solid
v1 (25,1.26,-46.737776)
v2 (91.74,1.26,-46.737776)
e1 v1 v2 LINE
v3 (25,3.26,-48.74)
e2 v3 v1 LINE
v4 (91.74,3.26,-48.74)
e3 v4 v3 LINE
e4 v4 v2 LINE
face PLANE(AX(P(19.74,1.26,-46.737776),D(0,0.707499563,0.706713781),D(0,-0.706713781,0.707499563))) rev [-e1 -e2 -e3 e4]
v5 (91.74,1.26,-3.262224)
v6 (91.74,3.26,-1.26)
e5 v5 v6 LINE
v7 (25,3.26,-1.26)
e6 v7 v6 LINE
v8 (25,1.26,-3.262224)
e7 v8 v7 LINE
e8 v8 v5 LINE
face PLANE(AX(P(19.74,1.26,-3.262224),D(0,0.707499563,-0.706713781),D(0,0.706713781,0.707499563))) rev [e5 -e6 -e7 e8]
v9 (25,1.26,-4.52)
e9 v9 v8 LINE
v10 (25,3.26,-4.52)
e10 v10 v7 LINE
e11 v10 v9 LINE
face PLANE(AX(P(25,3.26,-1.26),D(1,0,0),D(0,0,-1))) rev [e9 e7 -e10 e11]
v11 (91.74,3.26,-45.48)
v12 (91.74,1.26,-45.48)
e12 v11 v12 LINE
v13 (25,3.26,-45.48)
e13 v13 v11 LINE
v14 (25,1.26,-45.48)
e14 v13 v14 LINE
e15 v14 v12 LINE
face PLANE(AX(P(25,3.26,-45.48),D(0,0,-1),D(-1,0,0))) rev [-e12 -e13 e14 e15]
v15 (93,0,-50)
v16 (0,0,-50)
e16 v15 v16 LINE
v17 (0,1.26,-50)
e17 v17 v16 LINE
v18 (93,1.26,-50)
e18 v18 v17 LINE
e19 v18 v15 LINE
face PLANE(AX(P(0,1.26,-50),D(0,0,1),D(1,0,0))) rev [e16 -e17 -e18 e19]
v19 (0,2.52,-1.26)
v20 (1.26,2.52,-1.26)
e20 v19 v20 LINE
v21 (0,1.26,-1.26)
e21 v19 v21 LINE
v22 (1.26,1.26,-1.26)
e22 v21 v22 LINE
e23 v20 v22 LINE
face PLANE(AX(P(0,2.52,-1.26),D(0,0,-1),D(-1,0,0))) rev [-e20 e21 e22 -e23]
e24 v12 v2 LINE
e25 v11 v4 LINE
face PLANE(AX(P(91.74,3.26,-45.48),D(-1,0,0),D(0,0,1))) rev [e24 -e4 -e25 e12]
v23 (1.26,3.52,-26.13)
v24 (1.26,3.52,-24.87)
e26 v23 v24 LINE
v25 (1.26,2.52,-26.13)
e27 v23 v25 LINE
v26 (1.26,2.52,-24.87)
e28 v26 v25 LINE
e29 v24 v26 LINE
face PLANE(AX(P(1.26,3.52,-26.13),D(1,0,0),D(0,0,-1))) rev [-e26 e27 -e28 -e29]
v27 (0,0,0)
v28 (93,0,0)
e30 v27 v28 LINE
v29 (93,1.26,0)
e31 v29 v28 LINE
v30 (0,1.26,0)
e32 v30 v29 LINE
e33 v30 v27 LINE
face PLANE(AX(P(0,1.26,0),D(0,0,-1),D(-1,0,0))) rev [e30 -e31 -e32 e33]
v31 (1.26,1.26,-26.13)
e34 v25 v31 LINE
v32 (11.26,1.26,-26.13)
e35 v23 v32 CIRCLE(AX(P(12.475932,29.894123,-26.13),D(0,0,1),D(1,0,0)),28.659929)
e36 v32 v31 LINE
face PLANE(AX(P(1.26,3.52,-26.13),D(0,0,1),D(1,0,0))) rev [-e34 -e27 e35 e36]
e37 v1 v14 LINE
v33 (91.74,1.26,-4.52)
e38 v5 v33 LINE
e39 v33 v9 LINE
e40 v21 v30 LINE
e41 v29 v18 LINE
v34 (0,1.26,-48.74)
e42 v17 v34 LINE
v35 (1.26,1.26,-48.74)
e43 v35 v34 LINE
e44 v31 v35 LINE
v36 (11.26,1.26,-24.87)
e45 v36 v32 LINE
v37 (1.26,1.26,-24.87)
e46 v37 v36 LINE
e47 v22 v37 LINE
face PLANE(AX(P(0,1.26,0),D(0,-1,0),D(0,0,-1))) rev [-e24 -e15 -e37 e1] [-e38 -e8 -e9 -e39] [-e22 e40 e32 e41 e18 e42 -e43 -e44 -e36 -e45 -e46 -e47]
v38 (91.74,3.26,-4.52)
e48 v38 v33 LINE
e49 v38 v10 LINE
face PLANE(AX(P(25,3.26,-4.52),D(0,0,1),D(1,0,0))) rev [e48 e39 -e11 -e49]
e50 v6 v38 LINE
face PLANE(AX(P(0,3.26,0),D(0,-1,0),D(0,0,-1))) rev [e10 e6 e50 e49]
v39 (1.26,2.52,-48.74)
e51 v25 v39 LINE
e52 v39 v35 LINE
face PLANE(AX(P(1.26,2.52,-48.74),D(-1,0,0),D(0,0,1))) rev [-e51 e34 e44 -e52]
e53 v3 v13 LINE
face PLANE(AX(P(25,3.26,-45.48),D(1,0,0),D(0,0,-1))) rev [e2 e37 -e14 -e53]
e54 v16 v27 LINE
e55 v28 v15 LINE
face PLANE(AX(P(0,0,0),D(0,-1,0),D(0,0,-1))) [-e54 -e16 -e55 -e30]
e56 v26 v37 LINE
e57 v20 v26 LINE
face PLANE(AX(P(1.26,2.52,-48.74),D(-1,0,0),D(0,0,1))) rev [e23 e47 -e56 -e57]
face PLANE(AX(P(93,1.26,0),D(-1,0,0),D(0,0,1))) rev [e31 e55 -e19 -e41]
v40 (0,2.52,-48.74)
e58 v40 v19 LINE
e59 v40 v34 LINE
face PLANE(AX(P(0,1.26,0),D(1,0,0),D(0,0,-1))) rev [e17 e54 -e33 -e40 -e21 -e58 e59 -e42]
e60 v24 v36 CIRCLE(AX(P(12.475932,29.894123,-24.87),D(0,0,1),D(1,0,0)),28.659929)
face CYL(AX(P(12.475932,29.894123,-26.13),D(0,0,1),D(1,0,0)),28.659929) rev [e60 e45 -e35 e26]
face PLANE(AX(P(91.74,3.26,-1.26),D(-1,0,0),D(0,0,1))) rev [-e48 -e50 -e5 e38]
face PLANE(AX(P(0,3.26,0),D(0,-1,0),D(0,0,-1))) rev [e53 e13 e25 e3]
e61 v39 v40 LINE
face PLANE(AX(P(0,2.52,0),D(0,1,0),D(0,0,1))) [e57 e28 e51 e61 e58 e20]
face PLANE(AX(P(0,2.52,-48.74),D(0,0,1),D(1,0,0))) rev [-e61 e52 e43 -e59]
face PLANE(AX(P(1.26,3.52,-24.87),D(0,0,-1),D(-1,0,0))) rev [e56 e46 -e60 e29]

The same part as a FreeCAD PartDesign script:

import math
import FreeCAD as App
import Part
import Sketcher

doc = App.newDocument("Part")
body = doc.addObject("PartDesign::Body", "Body")

# Sketch on XZ plane
sketch1 = body.newObject("Sketcher::SketchObject", "Sketch")
sketch1.AttachmentSupport = (doc.getObject("XZ_Plane"), [""])
sketch1.MapMode = "FlatFace"
sketch1.addGeometry(Part.LineSegment(App.Vector(0, -50, 0), App.Vector(0, 0, 0)), False)
sketch1.addGeometry(Part.LineSegment(App.Vector(0, 0, 0), App.Vector(93, 0, 0)), False)
sketch1.addGeometry(Part.LineSegment(App.Vector(93, 0, 0), App.Vector(93, -50, 0)), False)
sketch1.addGeometry(Part.LineSegment(App.Vector(93, -50, 0), App.Vector(0, -50, 0)), False)
sketch1.addConstraint(Sketcher.Constraint("Coincident", 0, 2, 1, 1))
sketch1.addConstraint(Sketcher.Constraint("Coincident", 1, 2, 2, 1))
sketch1.addConstraint(Sketcher.Constraint("Coincident", 2, 2, 3, 1))
sketch1.addConstraint(Sketcher.Constraint("Coincident", 3, 2, 0, 1))
sketch1.addConstraint(Sketcher.Constraint("Vertical", 0))
sketch1.addConstraint(Sketcher.Constraint("Horizontal", 1))
sketch1.addConstraint(Sketcher.Constraint("Vertical", 2))
sketch1.addConstraint(Sketcher.Constraint("Horizontal", 3))
sketch1.addConstraint(Sketcher.Constraint("Coincident", 0, 2, -1, 1))
sketch1.addConstraint(Sketcher.Constraint("DistanceX", 1, 1, 1, 2, 93.0))
sketch1.addConstraint(Sketcher.Constraint("DistanceY", 0, 1, 0, 2, 50.0))
pad1 = body.newObject("PartDesign::Pad", "Pad")
pad1.Profile = sketch1
pad1.Length = 1.26
pad1.Reversed = True

# Sketch on XZ plane
sketch2 = body.newObject("Sketcher::SketchObject", "Sketch001")
sketch2.AttachmentSupport = (doc.getObject("XZ_Plane"), [""])
sketch2.MapMode = "FlatFace"
sketch2.AttachmentOffset = App.Placement(App.Vector(0, 0, -1.26), App.Rotation())
sketch2.addGeometry(Part.LineSegment(App.Vector(0, -48.7, 0), App.Vector(0, -1.3, 0)), False)
sketch2.addGeometry(Part.LineSegment(App.Vector(0, -1.3, 0), App.Vector(1.3, -1.3, 0)), False)
sketch2.addGeometry(Part.LineSegment(App.Vector(1.3, -1.3, 0), App.Vector(1.3, -48.7, 0)), False)
sketch2.addGeometry(Part.LineSegment(App.Vector(1.3, -48.7, 0), App.Vector(0, -48.7, 0)), False)
sketch2.addConstraint(Sketcher.Constraint("Coincident", 0, 2, 1, 1))
sketch2.addConstraint(Sketcher.Constraint("Coincident", 1, 2, 2, 1))
sketch2.addConstraint(Sketcher.Constraint("Coincident", 2, 2, 3, 1))
sketch2.addConstraint(Sketcher.Constraint("Coincident", 3, 2, 0, 1))
sketch2.addConstraint(Sketcher.Constraint("Vertical", 0))
sketch2.addConstraint(Sketcher.Constraint("Horizontal", 1))
sketch2.addConstraint(Sketcher.Constraint("Vertical", 2))
sketch2.addConstraint(Sketcher.Constraint("Horizontal", 3))
sketch2.addConstraint(Sketcher.Constraint("PointOnObject", 0, 2, -2))
sketch2.addConstraint(Sketcher.Constraint("DistanceX", 1, 1, 1, 2, 1.26))
sketch2.addConstraint(Sketcher.Constraint("DistanceY", 0, 1, 0, 2, 47.48))
sketch2.addConstraint(Sketcher.Constraint("DistanceY", 0, 2, -1, 1, 1.26))
pad2 = body.newObject("PartDesign::Pad", "Pad001")
pad2.Profile = sketch2
pad2.Length = 1.26
pad2.Reversed = True

# Sketch on XZ plane
sketch3 = body.newObject("Sketcher::SketchObject", "Sketch002")
sketch3.AttachmentSupport = (doc.getObject("XZ_Plane"), [""])
sketch3.MapMode = "FlatFace"
sketch3.AttachmentOffset = App.Placement(App.Vector(0, 0, -1.26), App.Rotation())
sketch3.addGeometry(Part.LineSegment(App.Vector(1.3, -26.1, 0), App.Vector(1.3, -24.9, 0)), False)
sketch3.addGeometry(Part.LineSegment(App.Vector(1.3, -24.9, 0), App.Vector(11.3, -24.9, 0)), False)
sketch3.addGeometry(Part.LineSegment(App.Vector(11.3, -24.9, 0), App.Vector(11.3, -26.1, 0)), False)
sketch3.addGeometry(Part.LineSegment(App.Vector(11.3, -26.1, 0), App.Vector(1.3, -26.1, 0)), False)
sketch3.addConstraint(Sketcher.Constraint("Coincident", 0, 2, 1, 1))
sketch3.addConstraint(Sketcher.Constraint("Coincident", 1, 2, 2, 1))
sketch3.addConstraint(Sketcher.Constraint("Coincident", 2, 2, 3, 1))
sketch3.addConstraint(Sketcher.Constraint("Coincident", 3, 2, 0, 1))
sketch3.addConstraint(Sketcher.Constraint("Vertical", 0))
sketch3.addConstraint(Sketcher.Constraint("Horizontal", 1))
sketch3.addConstraint(Sketcher.Constraint("Vertical", 2))
sketch3.addConstraint(Sketcher.Constraint("Horizontal", 3))
sketch3.addConstraint(Sketcher.Constraint("DistanceX", 1, 1, 1, 2, 10.0))
sketch3.addConstraint(Sketcher.Constraint("DistanceY", 0, 1, 0, 2, 1.26))
sketch3.addConstraint(Sketcher.Constraint("DistanceX", -1, 1, 0, 2, 1.26))
sketch3.addConstraint(Sketcher.Constraint("DistanceY", 0, 2, -1, 1, 24.87))
pad3 = body.newObject("PartDesign::Pad", "Pad002")
pad3.Profile = sketch3
pad3.Length = 2.26
pad3.Reversed = True

# Sketch on XY plane
sketch4 = body.newObject("Sketcher::SketchObject", "Sketch003")
sketch4.AttachmentSupport = (doc.getObject("XY_Plane"), [""])
sketch4.MapMode = "FlatFace"
sketch4.AttachmentOffset = App.Placement(App.Vector(0, 0, -24.87), App.Rotation())
sketch4.addGeometry(Part.LineSegment(App.Vector(11.3, 3.5, 0), App.Vector(1.3, 3.5, 0)), False)
sketch4.addGeometry(Part.ArcOfCircle(Part.Circle(App.Vector(12.5, 29.9, 0), App.Vector(0, 0, 1), 28.7), math.radians(-113), math.radians(-92)), False)
sketch4.addGeometry(Part.LineSegment(App.Vector(11.3, 1.3, 0), App.Vector(11.3, 3.5, 0)), False)
sketch4.addConstraint(Sketcher.Constraint("Coincident", 0, 2, 1, 1))
sketch4.addConstraint(Sketcher.Constraint("Coincident", 1, 2, 2, 1))
sketch4.addConstraint(Sketcher.Constraint("Coincident", 2, 2, 0, 1))
sketch4.addConstraint(Sketcher.Constraint("Horizontal", 0))
sketch4.addConstraint(Sketcher.Constraint("Vertical", 2))
sketch4.addConstraint(Sketcher.Constraint("DistanceX", 0, 2, 0, 1, 10.0))
sketch4.addConstraint(Sketcher.Constraint("DistanceY", 2, 1, 2, 2, 2.26))
sketch4.addConstraint(Sketcher.Constraint("DistanceX", -1, 1, 0, 2, 1.26))
sketch4.addConstraint(Sketcher.Constraint("DistanceY", -1, 1, 0, 2, 3.52))
sketch4.addConstraint(Sketcher.Constraint("Radius", 1, 28.659929))
pocket1 = body.newObject("PartDesign::Pocket", "Pocket")
pocket1.Profile = sketch4
pocket1.Length = 1.26

# Sketch on XZ plane
sketch5 = body.newObject("Sketcher::SketchObject", "Sketch004")
sketch5.AttachmentSupport = (doc.getObject("XZ_Plane"), [""])
sketch5.MapMode = "FlatFace"
sketch5.AttachmentOffset = App.Placement(App.Vector(0, 0, -1.26), App.Rotation())
sketch5.addGeometry(Part.LineSegment(App.Vector(25, -4.5, 0), App.Vector(25, -1.3, 0)), False)
sketch5.addGeometry(Part.LineSegment(App.Vector(25, -1.3, 0), App.Vector(91.7, -1.3, 0)), False)
sketch5.addGeometry(Part.LineSegment(App.Vector(91.7, -1.3, 0), App.Vector(91.7, -4.5, 0)), False)
sketch5.addGeometry(Part.LineSegment(App.Vector(91.7, -4.5, 0), App.Vector(25, -4.5, 0)), False)
sketch5.addGeometry(Part.LineSegment(App.Vector(25, -48.7, 0), App.Vector(25, -45.5, 0)), False)
sketch5.addGeometry(Part.LineSegment(App.Vector(25, -45.5, 0), App.Vector(91.7, -45.5, 0)), False)
sketch5.addGeometry(Part.LineSegment(App.Vector(91.7, -45.5, 0), App.Vector(91.7, -48.7, 0)), False)
sketch5.addGeometry(Part.LineSegment(App.Vector(91.7, -48.7, 0), App.Vector(25, -48.7, 0)), False)
sketch5.addConstraint(Sketcher.Constraint("Coincident", 0, 2, 1, 1))
sketch5.addConstraint(Sketcher.Constraint("Coincident", 1, 2, 2, 1))
sketch5.addConstraint(Sketcher.Constraint("Coincident", 2, 2, 3, 1))
sketch5.addConstraint(Sketcher.Constraint("Coincident", 3, 2, 0, 1))
sketch5.addConstraint(Sketcher.Constraint("Coincident", 4, 2, 5, 1))
sketch5.addConstraint(Sketcher.Constraint("Coincident", 5, 2, 6, 1))
sketch5.addConstraint(Sketcher.Constraint("Coincident", 6, 2, 7, 1))
sketch5.addConstraint(Sketcher.Constraint("Coincident", 7, 2, 4, 1))
sketch5.addConstraint(Sketcher.Constraint("Vertical", 0))
sketch5.addConstraint(Sketcher.Constraint("Horizontal", 1))
sketch5.addConstraint(Sketcher.Constraint("Vertical", 2))
sketch5.addConstraint(Sketcher.Constraint("Horizontal", 3))
sketch5.addConstraint(Sketcher.Constraint("Vertical", 4))
sketch5.addConstraint(Sketcher.Constraint("Horizontal", 5))
sketch5.addConstraint(Sketcher.Constraint("Vertical", 6))
sketch5.addConstraint(Sketcher.Constraint("Horizontal", 7))
sketch5.addConstraint(Sketcher.Constraint("Vertical", 3, 2, 4, 2))
sketch5.addConstraint(Sketcher.Constraint("Vertical", 2, 2, 5, 2))
sketch5.addConstraint(Sketcher.Constraint("Equal", 2, 4))
sketch5.addConstraint(Sketcher.Constraint("DistanceX", -1, 1, 0, 2, 25.0))
sketch5.addConstraint(Sketcher.Constraint("DistanceX", 1, 1, 1, 2, 66.74))
sketch5.addConstraint(Sketcher.Constraint("DistanceY", 0, 1, 0, 2, 3.26))
sketch5.addConstraint(Sketcher.Constraint("DistanceY", 0, 2, -1, 1, 1.26))
sketch5.addConstraint(Sketcher.Constraint("DistanceY", 4, 2, -1, 1, 45.48))
pad4 = body.newObject("PartDesign::Pad", "Pad003")
pad4.Profile = sketch5
pad4.Length = 2
pad4.Reversed = True

# Sketch on YZ plane
sketch6 = body.newObject("Sketcher::SketchObject", "Sketch005")
sketch6.AttachmentSupport = (doc.getObject("YZ_Plane"), [""])
sketch6.MapMode = "FlatFace"
sketch6.AttachmentOffset = App.Placement(App.Vector(0, 0, 91.74), App.Rotation())
sketch6.addGeometry(Part.LineSegment(App.Vector(1.3, -3.3, 0), App.Vector(3.3, -1.3, 0)), False)
sketch6.addGeometry(Part.LineSegment(App.Vector(3.3, -1.3, 0), App.Vector(1.3, -1.3, 0)), False)
sketch6.addGeometry(Part.LineSegment(App.Vector(1.3, -1.3, 0), App.Vector(1.3, -3.3, 0)), False)
sketch6.addGeometry(Part.LineSegment(App.Vector(3.3, -48.7, 0), App.Vector(1.3, -46.7, 0)), False)
sketch6.addGeometry(Part.LineSegment(App.Vector(1.3, -46.7, 0), App.Vector(1.3, -48.7, 0)), False)
sketch6.addGeometry(Part.LineSegment(App.Vector(1.3, -48.7, 0), App.Vector(3.3, -48.7, 0)), False)
sketch6.addConstraint(Sketcher.Constraint("Coincident", 0, 2, 1, 1))
sketch6.addConstraint(Sketcher.Constraint("Coincident", 1, 2, 2, 1))
sketch6.addConstraint(Sketcher.Constraint("Coincident", 2, 2, 0, 1))
sketch6.addConstraint(Sketcher.Constraint("Coincident", 3, 2, 4, 1))
sketch6.addConstraint(Sketcher.Constraint("Coincident", 4, 2, 5, 1))
sketch6.addConstraint(Sketcher.Constraint("Coincident", 5, 2, 3, 1))
sketch6.addConstraint(Sketcher.Constraint("Horizontal", 1))
sketch6.addConstraint(Sketcher.Constraint("Vertical", 2))
sketch6.addConstraint(Sketcher.Constraint("Vertical", 4))
sketch6.addConstraint(Sketcher.Constraint("Horizontal", 5))
sketch6.addConstraint(Sketcher.Constraint("Vertical", 2, 2, 3, 2))
sketch6.addConstraint(Sketcher.Constraint("Vertical", 0, 2, 5, 2))
sketch6.addConstraint(Sketcher.Constraint("Equal", 2, 4))
sketch6.addConstraint(Sketcher.Constraint("DistanceX", 1, 2, 1, 1, 2.0))
sketch6.addConstraint(Sketcher.Constraint("Distance", 0, 2.83))
sketch6.addConstraint(Sketcher.Constraint("DistanceX", -1, 1, 0, 2, 3.26))
sketch6.addConstraint(Sketcher.Constraint("DistanceY", 0, 2, -1, 1, 1.26))
sketch6.addConstraint(Sketcher.Constraint("DistanceY", 4, 2, -1, 1, 48.74))
pocket2 = body.newObject("PartDesign::Pocket", "Pocket001")
pocket2.Profile = sketch6
pocket2.Length = 72

doc.recompute()
